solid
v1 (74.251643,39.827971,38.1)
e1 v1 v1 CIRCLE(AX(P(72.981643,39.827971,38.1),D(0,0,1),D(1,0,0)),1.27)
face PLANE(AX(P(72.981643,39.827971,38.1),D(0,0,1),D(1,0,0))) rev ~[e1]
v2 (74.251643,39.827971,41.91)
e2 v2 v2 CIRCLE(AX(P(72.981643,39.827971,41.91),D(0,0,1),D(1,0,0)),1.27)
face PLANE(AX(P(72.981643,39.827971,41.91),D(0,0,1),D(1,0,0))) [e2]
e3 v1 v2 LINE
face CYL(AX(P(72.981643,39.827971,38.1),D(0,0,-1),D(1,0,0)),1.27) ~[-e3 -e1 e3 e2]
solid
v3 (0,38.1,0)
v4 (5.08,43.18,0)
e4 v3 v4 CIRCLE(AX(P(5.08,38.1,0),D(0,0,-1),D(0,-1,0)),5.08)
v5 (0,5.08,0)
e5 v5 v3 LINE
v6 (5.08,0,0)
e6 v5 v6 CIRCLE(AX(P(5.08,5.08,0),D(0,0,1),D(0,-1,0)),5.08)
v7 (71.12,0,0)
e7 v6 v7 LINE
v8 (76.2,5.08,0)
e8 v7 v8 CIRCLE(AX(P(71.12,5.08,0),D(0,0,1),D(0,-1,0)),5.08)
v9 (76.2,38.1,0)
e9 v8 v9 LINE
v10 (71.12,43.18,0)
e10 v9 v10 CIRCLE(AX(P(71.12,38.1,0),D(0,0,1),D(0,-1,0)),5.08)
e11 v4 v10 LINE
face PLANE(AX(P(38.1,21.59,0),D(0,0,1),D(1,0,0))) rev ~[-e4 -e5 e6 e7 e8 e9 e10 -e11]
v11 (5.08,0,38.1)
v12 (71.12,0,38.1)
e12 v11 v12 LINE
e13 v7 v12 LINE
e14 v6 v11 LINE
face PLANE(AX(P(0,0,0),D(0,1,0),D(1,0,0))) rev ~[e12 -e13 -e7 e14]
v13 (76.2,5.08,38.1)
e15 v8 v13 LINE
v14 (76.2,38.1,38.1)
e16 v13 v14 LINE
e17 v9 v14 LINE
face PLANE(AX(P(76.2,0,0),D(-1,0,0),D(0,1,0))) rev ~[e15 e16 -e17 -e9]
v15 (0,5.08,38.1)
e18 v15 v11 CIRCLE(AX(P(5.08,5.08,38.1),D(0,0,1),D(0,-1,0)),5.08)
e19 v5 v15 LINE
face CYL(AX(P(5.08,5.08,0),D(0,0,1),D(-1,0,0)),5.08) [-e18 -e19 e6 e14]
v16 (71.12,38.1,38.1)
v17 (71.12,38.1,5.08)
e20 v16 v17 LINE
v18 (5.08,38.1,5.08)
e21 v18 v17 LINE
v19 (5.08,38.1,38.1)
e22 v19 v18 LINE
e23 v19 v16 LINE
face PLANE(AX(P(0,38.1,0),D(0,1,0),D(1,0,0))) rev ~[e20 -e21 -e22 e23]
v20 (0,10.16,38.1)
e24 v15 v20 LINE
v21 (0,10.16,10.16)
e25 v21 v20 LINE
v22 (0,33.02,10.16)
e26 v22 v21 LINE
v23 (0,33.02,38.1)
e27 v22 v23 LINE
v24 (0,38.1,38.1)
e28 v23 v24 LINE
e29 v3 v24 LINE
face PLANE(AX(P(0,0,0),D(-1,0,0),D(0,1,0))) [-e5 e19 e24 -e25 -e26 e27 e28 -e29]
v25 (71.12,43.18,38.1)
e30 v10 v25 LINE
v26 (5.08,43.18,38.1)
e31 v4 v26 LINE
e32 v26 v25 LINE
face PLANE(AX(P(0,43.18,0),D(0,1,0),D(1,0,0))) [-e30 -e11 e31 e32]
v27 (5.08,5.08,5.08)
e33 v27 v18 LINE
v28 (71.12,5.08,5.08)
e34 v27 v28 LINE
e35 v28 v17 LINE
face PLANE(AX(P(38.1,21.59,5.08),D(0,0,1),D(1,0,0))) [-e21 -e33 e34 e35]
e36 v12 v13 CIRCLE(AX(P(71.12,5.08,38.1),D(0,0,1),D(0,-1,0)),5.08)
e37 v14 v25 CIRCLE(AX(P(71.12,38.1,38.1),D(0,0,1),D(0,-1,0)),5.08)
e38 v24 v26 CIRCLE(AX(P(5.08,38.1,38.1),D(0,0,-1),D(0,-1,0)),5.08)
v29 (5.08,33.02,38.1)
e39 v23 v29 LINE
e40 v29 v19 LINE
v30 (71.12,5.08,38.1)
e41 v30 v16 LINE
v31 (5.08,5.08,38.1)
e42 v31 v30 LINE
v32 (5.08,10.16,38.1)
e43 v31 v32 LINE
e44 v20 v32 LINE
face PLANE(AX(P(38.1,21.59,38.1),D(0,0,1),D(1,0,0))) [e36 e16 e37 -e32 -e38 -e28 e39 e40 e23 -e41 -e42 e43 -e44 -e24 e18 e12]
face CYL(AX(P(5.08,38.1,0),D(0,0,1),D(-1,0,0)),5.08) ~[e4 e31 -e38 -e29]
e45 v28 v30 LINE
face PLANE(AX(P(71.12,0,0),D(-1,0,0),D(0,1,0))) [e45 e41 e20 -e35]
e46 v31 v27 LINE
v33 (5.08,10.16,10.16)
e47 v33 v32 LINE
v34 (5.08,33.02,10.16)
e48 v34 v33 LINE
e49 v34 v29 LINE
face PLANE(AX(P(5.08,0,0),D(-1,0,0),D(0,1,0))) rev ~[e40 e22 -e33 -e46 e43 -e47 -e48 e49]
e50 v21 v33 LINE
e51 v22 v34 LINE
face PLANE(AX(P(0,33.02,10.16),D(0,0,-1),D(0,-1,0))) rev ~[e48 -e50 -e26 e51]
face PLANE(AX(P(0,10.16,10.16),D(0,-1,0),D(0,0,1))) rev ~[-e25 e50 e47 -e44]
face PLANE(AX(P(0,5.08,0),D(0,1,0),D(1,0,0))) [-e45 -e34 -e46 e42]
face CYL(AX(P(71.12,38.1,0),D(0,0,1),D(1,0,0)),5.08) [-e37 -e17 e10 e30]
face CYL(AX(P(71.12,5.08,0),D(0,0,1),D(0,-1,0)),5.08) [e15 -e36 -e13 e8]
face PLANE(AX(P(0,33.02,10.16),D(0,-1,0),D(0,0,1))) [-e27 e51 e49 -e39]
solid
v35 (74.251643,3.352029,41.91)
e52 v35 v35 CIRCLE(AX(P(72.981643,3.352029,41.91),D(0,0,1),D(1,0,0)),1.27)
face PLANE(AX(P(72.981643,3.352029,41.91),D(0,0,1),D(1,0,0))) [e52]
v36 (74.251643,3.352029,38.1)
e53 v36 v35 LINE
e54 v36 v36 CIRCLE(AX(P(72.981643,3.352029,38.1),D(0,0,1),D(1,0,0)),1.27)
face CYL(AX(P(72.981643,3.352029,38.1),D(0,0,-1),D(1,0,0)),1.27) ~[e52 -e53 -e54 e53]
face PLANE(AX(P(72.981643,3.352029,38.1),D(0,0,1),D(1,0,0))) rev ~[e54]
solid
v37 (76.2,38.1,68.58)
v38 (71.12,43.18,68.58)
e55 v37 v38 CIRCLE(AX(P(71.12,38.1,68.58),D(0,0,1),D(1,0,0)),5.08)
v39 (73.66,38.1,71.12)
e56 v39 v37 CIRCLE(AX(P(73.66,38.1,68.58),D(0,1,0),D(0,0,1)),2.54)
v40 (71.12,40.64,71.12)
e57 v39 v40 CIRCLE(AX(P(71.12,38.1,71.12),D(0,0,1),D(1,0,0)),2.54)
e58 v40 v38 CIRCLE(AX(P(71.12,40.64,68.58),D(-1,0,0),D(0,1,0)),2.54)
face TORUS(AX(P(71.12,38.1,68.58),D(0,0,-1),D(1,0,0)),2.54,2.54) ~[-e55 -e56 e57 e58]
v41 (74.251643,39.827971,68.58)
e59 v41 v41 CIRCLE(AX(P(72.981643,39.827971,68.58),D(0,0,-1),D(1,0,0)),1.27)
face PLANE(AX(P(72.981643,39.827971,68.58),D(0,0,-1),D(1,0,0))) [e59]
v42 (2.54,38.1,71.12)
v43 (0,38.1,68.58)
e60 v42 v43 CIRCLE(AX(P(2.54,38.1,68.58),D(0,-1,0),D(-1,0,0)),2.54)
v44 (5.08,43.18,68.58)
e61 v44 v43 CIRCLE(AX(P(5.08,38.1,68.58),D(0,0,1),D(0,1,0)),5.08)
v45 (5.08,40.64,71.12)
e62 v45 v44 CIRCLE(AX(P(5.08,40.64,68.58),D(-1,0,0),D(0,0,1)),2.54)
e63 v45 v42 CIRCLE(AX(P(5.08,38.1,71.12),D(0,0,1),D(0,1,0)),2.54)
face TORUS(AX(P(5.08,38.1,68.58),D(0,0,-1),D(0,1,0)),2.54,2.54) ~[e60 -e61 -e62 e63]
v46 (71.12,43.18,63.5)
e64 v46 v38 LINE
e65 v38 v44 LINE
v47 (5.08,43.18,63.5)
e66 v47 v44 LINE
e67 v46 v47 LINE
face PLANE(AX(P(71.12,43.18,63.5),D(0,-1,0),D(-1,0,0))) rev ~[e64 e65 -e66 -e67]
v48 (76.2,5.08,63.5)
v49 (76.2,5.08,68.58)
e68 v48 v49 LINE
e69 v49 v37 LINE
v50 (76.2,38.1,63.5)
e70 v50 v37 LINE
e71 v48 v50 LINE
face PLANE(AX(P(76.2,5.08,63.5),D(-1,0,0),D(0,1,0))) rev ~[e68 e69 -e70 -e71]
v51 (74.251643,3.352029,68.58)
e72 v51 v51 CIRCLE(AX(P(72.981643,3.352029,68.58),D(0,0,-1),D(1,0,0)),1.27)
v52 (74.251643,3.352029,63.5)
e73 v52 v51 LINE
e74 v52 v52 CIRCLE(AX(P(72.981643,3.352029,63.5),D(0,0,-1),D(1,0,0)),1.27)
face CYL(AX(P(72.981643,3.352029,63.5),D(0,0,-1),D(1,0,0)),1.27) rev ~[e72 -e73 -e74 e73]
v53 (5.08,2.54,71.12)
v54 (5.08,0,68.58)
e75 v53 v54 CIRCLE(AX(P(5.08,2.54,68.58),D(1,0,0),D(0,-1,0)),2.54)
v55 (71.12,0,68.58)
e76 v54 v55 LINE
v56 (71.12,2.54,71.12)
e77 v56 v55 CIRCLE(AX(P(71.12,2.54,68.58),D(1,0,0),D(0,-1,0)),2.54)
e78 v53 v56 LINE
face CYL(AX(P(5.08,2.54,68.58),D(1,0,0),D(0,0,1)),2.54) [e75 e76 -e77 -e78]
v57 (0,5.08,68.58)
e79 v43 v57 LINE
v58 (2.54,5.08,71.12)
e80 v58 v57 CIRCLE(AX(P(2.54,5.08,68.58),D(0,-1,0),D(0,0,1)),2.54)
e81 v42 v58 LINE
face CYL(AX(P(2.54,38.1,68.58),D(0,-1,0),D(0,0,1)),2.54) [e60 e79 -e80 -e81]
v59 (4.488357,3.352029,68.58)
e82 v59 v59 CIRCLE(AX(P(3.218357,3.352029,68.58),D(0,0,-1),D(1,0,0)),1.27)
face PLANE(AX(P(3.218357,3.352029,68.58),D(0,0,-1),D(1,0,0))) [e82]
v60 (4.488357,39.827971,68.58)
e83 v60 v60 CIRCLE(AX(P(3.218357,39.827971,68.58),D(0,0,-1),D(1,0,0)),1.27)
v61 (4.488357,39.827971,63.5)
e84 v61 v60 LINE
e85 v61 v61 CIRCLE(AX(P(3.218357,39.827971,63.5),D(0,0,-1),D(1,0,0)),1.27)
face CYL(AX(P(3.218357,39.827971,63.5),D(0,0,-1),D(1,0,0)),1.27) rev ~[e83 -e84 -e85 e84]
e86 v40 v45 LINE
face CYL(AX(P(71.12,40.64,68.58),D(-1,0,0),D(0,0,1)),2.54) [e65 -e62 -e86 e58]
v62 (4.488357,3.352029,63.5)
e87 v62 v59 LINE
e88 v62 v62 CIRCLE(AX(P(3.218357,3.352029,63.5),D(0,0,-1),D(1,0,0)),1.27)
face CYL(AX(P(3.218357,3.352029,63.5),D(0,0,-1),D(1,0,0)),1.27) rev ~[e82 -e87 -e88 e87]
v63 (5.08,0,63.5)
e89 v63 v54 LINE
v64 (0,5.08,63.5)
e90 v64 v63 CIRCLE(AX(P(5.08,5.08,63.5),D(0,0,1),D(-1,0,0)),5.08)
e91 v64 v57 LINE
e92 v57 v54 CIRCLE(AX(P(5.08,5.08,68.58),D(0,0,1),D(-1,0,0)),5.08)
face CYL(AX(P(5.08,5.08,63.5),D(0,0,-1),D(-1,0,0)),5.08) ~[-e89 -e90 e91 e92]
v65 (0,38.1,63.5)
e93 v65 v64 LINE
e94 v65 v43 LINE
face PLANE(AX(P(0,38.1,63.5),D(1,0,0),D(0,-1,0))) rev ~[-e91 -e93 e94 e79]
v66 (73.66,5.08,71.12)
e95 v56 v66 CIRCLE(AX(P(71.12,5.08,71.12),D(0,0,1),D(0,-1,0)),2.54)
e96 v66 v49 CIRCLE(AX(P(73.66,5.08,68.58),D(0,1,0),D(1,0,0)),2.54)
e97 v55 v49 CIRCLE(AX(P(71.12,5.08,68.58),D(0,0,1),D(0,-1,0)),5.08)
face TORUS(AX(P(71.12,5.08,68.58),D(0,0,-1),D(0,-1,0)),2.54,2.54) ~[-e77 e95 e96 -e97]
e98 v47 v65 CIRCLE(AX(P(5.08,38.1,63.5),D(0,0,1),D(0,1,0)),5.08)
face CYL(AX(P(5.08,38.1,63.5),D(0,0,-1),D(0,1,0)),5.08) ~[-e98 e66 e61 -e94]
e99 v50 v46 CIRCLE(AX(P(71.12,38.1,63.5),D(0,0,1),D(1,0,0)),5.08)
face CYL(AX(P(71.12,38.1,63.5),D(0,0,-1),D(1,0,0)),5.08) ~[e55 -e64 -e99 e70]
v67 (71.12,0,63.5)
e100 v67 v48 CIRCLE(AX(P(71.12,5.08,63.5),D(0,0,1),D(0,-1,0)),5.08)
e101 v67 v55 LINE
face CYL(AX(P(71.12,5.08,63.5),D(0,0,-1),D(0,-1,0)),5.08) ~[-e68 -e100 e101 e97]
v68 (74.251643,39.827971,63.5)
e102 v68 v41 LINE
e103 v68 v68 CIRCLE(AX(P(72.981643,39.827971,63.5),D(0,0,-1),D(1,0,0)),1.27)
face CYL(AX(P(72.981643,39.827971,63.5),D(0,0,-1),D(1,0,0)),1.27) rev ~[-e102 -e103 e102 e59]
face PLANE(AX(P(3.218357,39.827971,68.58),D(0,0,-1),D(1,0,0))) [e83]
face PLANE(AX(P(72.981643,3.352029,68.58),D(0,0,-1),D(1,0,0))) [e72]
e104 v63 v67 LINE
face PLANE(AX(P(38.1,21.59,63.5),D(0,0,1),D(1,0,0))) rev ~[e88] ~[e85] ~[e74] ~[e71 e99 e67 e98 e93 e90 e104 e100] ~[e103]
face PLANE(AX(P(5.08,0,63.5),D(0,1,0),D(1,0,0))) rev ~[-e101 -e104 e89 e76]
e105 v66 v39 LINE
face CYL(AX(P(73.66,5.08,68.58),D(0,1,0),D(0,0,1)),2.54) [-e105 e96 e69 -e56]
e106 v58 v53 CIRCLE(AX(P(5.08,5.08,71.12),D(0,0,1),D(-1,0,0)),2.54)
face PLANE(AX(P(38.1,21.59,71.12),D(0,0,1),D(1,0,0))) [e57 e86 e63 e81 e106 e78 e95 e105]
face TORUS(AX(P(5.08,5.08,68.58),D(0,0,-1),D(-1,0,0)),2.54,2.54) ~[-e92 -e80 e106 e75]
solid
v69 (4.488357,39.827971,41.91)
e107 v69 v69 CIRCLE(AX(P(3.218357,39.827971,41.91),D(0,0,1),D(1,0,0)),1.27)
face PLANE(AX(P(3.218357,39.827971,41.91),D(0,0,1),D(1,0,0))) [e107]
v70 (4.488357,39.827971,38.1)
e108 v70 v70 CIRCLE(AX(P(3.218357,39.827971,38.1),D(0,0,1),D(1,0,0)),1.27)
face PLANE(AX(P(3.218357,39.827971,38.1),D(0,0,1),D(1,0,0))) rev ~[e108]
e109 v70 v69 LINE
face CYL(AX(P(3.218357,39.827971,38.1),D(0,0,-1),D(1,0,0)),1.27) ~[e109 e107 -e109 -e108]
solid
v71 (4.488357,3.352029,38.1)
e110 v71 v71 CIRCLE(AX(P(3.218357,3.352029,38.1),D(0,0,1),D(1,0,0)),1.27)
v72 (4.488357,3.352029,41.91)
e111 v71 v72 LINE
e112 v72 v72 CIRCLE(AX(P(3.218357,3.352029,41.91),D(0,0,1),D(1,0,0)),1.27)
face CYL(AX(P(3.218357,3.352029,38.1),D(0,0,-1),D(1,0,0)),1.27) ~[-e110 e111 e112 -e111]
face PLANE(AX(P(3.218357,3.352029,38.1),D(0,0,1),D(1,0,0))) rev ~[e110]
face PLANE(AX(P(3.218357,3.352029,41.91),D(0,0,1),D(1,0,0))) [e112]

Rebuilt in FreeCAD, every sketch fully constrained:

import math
import FreeCAD as App
import Part
import Sketcher
from FreeCAD import Vector
Q = App.Units.Quantity


def edges_at(feature, points):
    """Names of the edges that pass closest to the given points."""
    edges = feature.Shape.Edges
    near = lambda p: min(range(len(edges)), key=lambda i: edges[i].distToShape(Part.Vertex(*p))[0])
    return sorted({f"Edge{near(p) + 1}" for p in points})


def faces_at(feature, points):
    """Names of the faces that lie closest to the given points."""
    faces = feature.Shape.Faces
    near = lambda p: min(range(len(faces)), key=lambda i: faces[i].distToShape(Part.Vertex(*p))[0])
    return sorted({f"Face{near(p) + 1}" for p in points})

doc = App.newDocument("Part")
body = doc.addObject("PartDesign::Body", "Body")

# Sketch on XY plane
sketch1 = body.newObject("Sketcher::SketchObject", "Sketch")
sketch1.AttachmentSupport = (doc.getObject("XY_Plane"), [""])
sketch1.MapMode = "FlatFace"
sketch1.addGeometry([
    Part.LineSegment(Vector(0, 43, 0), Vector(0, 0, 0)),
    Part.LineSegment(Vector(0, 0, 0), Vector(76, 0, 0)),
    Part.LineSegment(Vector(76, 0, 0), Vector(76, 43, 0)),
    Part.LineSegment(Vector(76, 43, 0), Vector(0, 43, 0)),
], False)
sketch1.addConstraint([
    Sketcher.Constraint("Coincident", 0, 2, 1, 1),
    Sketcher.Constraint("Coincident", 1, 2, 2, 1),
    Sketcher.Constraint("Coincident", 2, 2, 3, 1),
    Sketcher.Constraint("Coincident", 3, 2, 0, 1),
    Sketcher.Constraint("Vertical", 0),
    Sketcher.Constraint("Horizontal", 1),
    Sketcher.Constraint("Vertical", 2),
    Sketcher.Constraint("Horizontal", 3),
    Sketcher.Constraint("Coincident", 0, 2, -1, 1),
    Sketcher.Constraint("DistanceX", 1, 1, 1, 2, Q("3 in")),
    Sketcher.Constraint("DistanceY", 0, 2, 0, 1, Q("1.7 in")),
])
pad1 = body.newObject("PartDesign::Pad", "Pad")
pad1.Profile = sketch1
pad1.Length = Q("1.5 in")
doc.recompute()

thickness = body.newObject("PartDesign::Thickness", "Thickness")
thickness.Base = (pad1, faces_at(pad1, [(38.1, 21.59, 38.1)]))
thickness.Value = Q("0.2 in")
thickness.Reversed = True
thickness.Join = "Arc"
doc.recompute()

fillet = body.newObject("PartDesign::Fillet", "Fillet")
fillet.Base = (thickness, edges_at(thickness, [
    (76.2, 43.18, 19.05),
    (76.2, 0, 19.05),
    (0, 0, 19.05),
    (0, 43.18, 19.05),
]))
fillet.Radius = Q("0.2 in")

# Sketch on YZ plane
sketch2 = body.newObject("Sketcher::SketchObject", "Sketch001")
sketch2.AttachmentSupport = (doc.getObject("YZ_Plane"), [""])
sketch2.MapMode = "FlatFace"
sketch2.addGeometry([
    Part.LineSegment(Vector(33, 38, 0), Vector(33, 10, 0)),
    Part.LineSegment(Vector(33, 10, 0), Vector(10, 10, 0)),
    Part.LineSegment(Vector(10, 10, 0), Vector(10, 38, 0)),
    Part.LineSegment(Vector(10, 38, 0), Vector(33, 38, 0)),
], False)
sketch2.addConstraint([
    Sketcher.Constraint("Coincident", 0, 2, 1, 1),
    Sketcher.Constraint("Coincident", 1, 2, 2, 1),
    Sketcher.Constraint("Coincident", 2, 2, 3, 1),
    Sketcher.Constraint("Coincident", 3, 2, 0, 1),
    Sketcher.Constraint("Vertical", 0),
    Sketcher.Constraint("Horizontal", 1),
    Sketcher.Constraint("Vertical", 2),
    Sketcher.Constraint("Horizontal", 3),
    Sketcher.Constraint("DistanceX", 1, 2, 1, 1, Q("0.9 in")),
    Sketcher.Constraint("DistanceY", 0, 2, 0, 1, Q("1.1 in")),
    Sketcher.Constraint("DistanceX", -1, 1, 0, 2, Q("1.3 in")),
    Sketcher.Constraint("DistanceY", -1, 1, 0, 2, Q("0.4 in")),
])
pocket1 = body.newObject("PartDesign::Pocket", "Pocket")
pocket1.Profile = sketch2
pocket1.Length = Q("0.2 in")
pocket1.Reversed = True
body2 = doc.addObject("PartDesign::Body", "Body001")

# Sketch on XY plane
sketch3 = body2.newObject("Sketcher::SketchObject", "Sketch002")
sketch3.AttachmentSupport = (doc.getObject("XY_Plane001"), [""])
sketch3.MapMode = "FlatFace"
sketch3.AttachmentOffset = App.Placement(Vector(0, 0, 1.5 * 25.4), App.Rotation())
sketch3.addGeometry(Part.Circle(Vector(3.2, 3.4, 0), Vector(0, 0, 1), 1.3), False)
sketch3.addConstraint([
    Sketcher.Constraint("Diameter", 0, Q("0.1 in")),
    Sketcher.Constraint("DistanceY", -1, 1, 0, 3, Q("3.352029 mm")),
    Sketcher.Constraint("DistanceX", -1, 1, 0, 3, Q("3.218357 mm")),
])
pad2 = body2.newObject("PartDesign::Pad", "Pad001")
pad2.Profile = sketch3
pad2.Length = Q("0.15 in")
body3 = doc.addObject("PartDesign::Body", "Body002")

# Sketch on XY plane
sketch4 = body3.newObject("Sketcher::SketchObject", "Sketch003")
sketch4.AttachmentSupport = (doc.getObject("XY_Plane002"), [""])
sketch4.MapMode = "FlatFace"
sketch4.AttachmentOffset = App.Placement(Vector(0, 0, 1.5 * 25.4), App.Rotation())
sketch4.addGeometry(Part.Circle(Vector(3.2, 39.8, 0), Vector(0, 0, 1), 1.3), False)
sketch4.addConstraint([
    Sketcher.Constraint("Diameter", 0, Q("0.1 in")),
    Sketcher.Constraint("DistanceY", -1, 1, 0, 3, Q("39.827971 mm")),
    Sketcher.Constraint("DistanceX", -1, 1, 0, 3, Q("3.218357 mm")),
])
pad3 = body3.newObject("PartDesign::Pad", "Pad002")
pad3.Profile = sketch4
pad3.Length = Q("0.15 in")
body4 = doc.addObject("PartDesign::Body", "Body003")

# Sketch on XY plane
sketch5 = body4.newObject("Sketcher::SketchObject", "Sketch004")
sketch5.AttachmentSupport = (doc.getObject("XY_Plane003"), [""])
sketch5.MapMode = "FlatFace"
sketch5.AttachmentOffset = App.Placement(Vector(0, 0, 1.5 * 25.4), App.Rotation())
sketch5.addGeometry(Part.Circle(Vector(73, 3.4, 0), Vector(0, 0, 1), 1.3), False)
sketch5.addConstraint([
    Sketcher.Constraint("Diameter", 0, Q("0.1 in")),
    Sketcher.Constraint("DistanceY", -1, 1, 0, 3, Q("3.352029 mm")),
    Sketcher.Constraint("DistanceX", -1, 1, 0, 3, Q("72.981643 mm")),
])
pad4 = body4.newObject("PartDesign::Pad", "Pad003")
pad4.Profile = sketch5
pad4.Length = Q("0.15 in")
body5 = doc.addObject("PartDesign::Body", "Body004")

# Sketch on XY plane
sketch6 = body5.newObject("Sketcher::SketchObject", "Sketch005")
sketch6.AttachmentSupport = (doc.getObject("XY_Plane004"), [""])
sketch6.MapMode = "FlatFace"
sketch6.AttachmentOffset = App.Placement(Vector(0, 0, 1.5 * 25.4), App.Rotation())
sketch6.addGeometry(Part.Circle(Vector(73, 39.8, 0), Vector(0, 0, 1), 1.3), False)
sketch6.addConstraint([
    Sketcher.Constraint("Diameter", 0, Q("0.1 in")),
    Sketcher.Constraint("DistanceY", -1, 1, 0, 3, Q("39.827971 mm")),
    Sketcher.Constraint("DistanceX", -1, 1, 0, 3, Q("72.981643 mm")),
])
pad5 = body5.newObject("PartDesign::Pad", "Pad004")
pad5.Profile = sketch6
pad5.Length = Q("0.15 in")
body6 = doc.addObject("PartDesign::Body", "Body005")

# Sketch on XY plane
sketch7 = body6.newObject("Sketcher::SketchObject", "Sketch006")
sketch7.AttachmentSupport = (doc.getObject("XY_Plane005"), [""])
sketch7.MapMode = "FlatFace"
sketch7.AttachmentOffset = App.Placement(Vector(0, 0, 2.5 * 25.4), App.Rotation())
sketch7.addGeometry([
    Part.ArcOfCircle(Part.Circle(Vector(71, 38, 0), Vector(0, 0, 1), 5), math.radians(0), math.radians(90)),  # 0
    Part.LineSegment(Vector(71, 43, 0), Vector(5, 43, 0)),  # 1
    Part.ArcOfCircle(Part.Circle(Vector(5, 38, 0), Vector(0, 0, 1), 5), math.radians(90), math.radians(180)),  # 2
    Part.LineSegment(Vector(0, 38, 0), Vector(0, 5, 0)),  # 3
    Part.ArcOfCircle(Part.Circle(Vector(5, 5, 0), Vector(0, 0, 1), 5), math.radians(180), math.radians(270)),  # 4
    Part.LineSegment(Vector(5, 0, 0), Vector(71, 0, 0)),  # 5
    Part.ArcOfCircle(Part.Circle(Vector(71, 5, 0), Vector(0, 0, 1), 5), math.radians(-90), math.radians(0)),  # 6
    Part.LineSegment(Vector(76, 5, 0), Vector(76, 38, 0)),  # 7
], False)
sketch7.addConstraint([
    Sketcher.Constraint("Tangent", 0, 2, 1, 1),
    Sketcher.Constraint("Tangent", 1, 2, 2, 1),
    Sketcher.Constraint("Tangent", 2, 2, 3, 1),
    Sketcher.Constraint("Tangent", 3, 2, 4, 1),
    Sketcher.Constraint("Tangent", 4, 2, 5, 1),
    Sketcher.Constraint("Tangent", 5, 2, 6, 1),
    Sketcher.Constraint("Tangent", 6, 2, 7, 1),
    Sketcher.Constraint("Tangent", 7, 2, 0, 1),
    Sketcher.Constraint("Horizontal", 1),
    Sketcher.Constraint("Vertical", 3),
    Sketcher.Constraint("Horizontal", 5),
    Sketcher.Constraint("Vertical", 7),
    Sketcher.Constraint("Equal", 0, 2),
    Sketcher.Constraint("Equal", 2, 4),
    Sketcher.Constraint("Equal", 4, 6),
    Sketcher.Constraint("PointOnObject", 2, 2, -2),
    Sketcher.Constraint("PointOnObject", 4, 2, -1),
    Sketcher.Constraint("Radius", 0, Q("0.2 in")),
    Sketcher.Constraint("DistanceX", 1, 2, 1, 1, Q("2.6 in")),
    Sketcher.Constraint("DistanceY", 3, 2, 3, 1, Q("1.3 in")),
])
pad6 = body6.newObject("PartDesign::Pad", "Pad005")
pad6.Profile = sketch7
pad6.Length = Q("0.3 in")

# Sketch on XY plane
sketch8 = body6.newObject("Sketcher::SketchObject", "Sketch007")
sketch8.AttachmentSupport = (doc.getObject("XY_Plane005"), [""])
sketch8.MapMode = "FlatFace"
sketch8.AttachmentOffset = App.Placement(Vector(0, 0, 2.5 * 25.4), App.Rotation())
sketch8.addGeometry([
    Part.Circle(Vector(3.2, 3.4, 0), Vector(0, 0, 1), 1.3),
    Part.Circle(Vector(73, 3.4, 0), Vector(0, 0, 1), 1.3),
    Part.Circle(Vector(73, 39.8, 0), Vector(0, 0, 1), 1.3),
    Part.Circle(Vector(3.2, 39.8, 0), Vector(0, 0, 1), 1.3),
], False)
sketch8.addConstraint([
    Sketcher.Constraint("Equal", 0, 1),
    Sketcher.Constraint("Equal", 1, 2),
    Sketcher.Constraint("Equal", 2, 3),
    Sketcher.Constraint("Horizontal", 0, 3, 1, 3),
    Sketcher.Constraint("Horizontal", 2, 3, 3, 3),
    Sketcher.Constraint("Vertical", 1, 3, 2, 3),
    Sketcher.Constraint("Vertical", 0, 3, 3, 3),
    Sketcher.Constraint("Diameter", 0, Q("0.1 in")),
    Sketcher.Constraint("DistanceY", -1, 1, 0, 3, Q("3.352029 mm")),
    Sketcher.Constraint("DistanceY", -1, 1, 2, 3, Q("39.827971 mm")),
    Sketcher.Constraint("DistanceX", -1, 1, 0, 3, Q("3.218357 mm")),
    Sketcher.Constraint("DistanceX", -1, 1, 1, 3, Q("72.981643 mm")),
])
pocket2 = body6.newObject("PartDesign::Pocket", "Pocket001")
pocket2.Profile = sketch8
pocket2.Length = Q("0.2 in")
pocket2.Reversed = True
doc.recompute()

fillet2 = body6.newObject("PartDesign::Fillet", "Fillet001")
fillet2.Base = (pocket2, edges_at(pocket2, [
    (74.712, 1.488, 71.12),
    (76.2, 21.59, 71.12),
    (74.712, 41.692, 71.12),
    (38.1, 43.18, 71.12),
    (1.488, 41.692, 71.12),
    (0, 21.59, 71.12),
    (1.488, 1.488, 71.12),
    (38.1, 0, 71.12),
]))
fillet2.Radius = Q("0.1 in")

doc.recompute()
